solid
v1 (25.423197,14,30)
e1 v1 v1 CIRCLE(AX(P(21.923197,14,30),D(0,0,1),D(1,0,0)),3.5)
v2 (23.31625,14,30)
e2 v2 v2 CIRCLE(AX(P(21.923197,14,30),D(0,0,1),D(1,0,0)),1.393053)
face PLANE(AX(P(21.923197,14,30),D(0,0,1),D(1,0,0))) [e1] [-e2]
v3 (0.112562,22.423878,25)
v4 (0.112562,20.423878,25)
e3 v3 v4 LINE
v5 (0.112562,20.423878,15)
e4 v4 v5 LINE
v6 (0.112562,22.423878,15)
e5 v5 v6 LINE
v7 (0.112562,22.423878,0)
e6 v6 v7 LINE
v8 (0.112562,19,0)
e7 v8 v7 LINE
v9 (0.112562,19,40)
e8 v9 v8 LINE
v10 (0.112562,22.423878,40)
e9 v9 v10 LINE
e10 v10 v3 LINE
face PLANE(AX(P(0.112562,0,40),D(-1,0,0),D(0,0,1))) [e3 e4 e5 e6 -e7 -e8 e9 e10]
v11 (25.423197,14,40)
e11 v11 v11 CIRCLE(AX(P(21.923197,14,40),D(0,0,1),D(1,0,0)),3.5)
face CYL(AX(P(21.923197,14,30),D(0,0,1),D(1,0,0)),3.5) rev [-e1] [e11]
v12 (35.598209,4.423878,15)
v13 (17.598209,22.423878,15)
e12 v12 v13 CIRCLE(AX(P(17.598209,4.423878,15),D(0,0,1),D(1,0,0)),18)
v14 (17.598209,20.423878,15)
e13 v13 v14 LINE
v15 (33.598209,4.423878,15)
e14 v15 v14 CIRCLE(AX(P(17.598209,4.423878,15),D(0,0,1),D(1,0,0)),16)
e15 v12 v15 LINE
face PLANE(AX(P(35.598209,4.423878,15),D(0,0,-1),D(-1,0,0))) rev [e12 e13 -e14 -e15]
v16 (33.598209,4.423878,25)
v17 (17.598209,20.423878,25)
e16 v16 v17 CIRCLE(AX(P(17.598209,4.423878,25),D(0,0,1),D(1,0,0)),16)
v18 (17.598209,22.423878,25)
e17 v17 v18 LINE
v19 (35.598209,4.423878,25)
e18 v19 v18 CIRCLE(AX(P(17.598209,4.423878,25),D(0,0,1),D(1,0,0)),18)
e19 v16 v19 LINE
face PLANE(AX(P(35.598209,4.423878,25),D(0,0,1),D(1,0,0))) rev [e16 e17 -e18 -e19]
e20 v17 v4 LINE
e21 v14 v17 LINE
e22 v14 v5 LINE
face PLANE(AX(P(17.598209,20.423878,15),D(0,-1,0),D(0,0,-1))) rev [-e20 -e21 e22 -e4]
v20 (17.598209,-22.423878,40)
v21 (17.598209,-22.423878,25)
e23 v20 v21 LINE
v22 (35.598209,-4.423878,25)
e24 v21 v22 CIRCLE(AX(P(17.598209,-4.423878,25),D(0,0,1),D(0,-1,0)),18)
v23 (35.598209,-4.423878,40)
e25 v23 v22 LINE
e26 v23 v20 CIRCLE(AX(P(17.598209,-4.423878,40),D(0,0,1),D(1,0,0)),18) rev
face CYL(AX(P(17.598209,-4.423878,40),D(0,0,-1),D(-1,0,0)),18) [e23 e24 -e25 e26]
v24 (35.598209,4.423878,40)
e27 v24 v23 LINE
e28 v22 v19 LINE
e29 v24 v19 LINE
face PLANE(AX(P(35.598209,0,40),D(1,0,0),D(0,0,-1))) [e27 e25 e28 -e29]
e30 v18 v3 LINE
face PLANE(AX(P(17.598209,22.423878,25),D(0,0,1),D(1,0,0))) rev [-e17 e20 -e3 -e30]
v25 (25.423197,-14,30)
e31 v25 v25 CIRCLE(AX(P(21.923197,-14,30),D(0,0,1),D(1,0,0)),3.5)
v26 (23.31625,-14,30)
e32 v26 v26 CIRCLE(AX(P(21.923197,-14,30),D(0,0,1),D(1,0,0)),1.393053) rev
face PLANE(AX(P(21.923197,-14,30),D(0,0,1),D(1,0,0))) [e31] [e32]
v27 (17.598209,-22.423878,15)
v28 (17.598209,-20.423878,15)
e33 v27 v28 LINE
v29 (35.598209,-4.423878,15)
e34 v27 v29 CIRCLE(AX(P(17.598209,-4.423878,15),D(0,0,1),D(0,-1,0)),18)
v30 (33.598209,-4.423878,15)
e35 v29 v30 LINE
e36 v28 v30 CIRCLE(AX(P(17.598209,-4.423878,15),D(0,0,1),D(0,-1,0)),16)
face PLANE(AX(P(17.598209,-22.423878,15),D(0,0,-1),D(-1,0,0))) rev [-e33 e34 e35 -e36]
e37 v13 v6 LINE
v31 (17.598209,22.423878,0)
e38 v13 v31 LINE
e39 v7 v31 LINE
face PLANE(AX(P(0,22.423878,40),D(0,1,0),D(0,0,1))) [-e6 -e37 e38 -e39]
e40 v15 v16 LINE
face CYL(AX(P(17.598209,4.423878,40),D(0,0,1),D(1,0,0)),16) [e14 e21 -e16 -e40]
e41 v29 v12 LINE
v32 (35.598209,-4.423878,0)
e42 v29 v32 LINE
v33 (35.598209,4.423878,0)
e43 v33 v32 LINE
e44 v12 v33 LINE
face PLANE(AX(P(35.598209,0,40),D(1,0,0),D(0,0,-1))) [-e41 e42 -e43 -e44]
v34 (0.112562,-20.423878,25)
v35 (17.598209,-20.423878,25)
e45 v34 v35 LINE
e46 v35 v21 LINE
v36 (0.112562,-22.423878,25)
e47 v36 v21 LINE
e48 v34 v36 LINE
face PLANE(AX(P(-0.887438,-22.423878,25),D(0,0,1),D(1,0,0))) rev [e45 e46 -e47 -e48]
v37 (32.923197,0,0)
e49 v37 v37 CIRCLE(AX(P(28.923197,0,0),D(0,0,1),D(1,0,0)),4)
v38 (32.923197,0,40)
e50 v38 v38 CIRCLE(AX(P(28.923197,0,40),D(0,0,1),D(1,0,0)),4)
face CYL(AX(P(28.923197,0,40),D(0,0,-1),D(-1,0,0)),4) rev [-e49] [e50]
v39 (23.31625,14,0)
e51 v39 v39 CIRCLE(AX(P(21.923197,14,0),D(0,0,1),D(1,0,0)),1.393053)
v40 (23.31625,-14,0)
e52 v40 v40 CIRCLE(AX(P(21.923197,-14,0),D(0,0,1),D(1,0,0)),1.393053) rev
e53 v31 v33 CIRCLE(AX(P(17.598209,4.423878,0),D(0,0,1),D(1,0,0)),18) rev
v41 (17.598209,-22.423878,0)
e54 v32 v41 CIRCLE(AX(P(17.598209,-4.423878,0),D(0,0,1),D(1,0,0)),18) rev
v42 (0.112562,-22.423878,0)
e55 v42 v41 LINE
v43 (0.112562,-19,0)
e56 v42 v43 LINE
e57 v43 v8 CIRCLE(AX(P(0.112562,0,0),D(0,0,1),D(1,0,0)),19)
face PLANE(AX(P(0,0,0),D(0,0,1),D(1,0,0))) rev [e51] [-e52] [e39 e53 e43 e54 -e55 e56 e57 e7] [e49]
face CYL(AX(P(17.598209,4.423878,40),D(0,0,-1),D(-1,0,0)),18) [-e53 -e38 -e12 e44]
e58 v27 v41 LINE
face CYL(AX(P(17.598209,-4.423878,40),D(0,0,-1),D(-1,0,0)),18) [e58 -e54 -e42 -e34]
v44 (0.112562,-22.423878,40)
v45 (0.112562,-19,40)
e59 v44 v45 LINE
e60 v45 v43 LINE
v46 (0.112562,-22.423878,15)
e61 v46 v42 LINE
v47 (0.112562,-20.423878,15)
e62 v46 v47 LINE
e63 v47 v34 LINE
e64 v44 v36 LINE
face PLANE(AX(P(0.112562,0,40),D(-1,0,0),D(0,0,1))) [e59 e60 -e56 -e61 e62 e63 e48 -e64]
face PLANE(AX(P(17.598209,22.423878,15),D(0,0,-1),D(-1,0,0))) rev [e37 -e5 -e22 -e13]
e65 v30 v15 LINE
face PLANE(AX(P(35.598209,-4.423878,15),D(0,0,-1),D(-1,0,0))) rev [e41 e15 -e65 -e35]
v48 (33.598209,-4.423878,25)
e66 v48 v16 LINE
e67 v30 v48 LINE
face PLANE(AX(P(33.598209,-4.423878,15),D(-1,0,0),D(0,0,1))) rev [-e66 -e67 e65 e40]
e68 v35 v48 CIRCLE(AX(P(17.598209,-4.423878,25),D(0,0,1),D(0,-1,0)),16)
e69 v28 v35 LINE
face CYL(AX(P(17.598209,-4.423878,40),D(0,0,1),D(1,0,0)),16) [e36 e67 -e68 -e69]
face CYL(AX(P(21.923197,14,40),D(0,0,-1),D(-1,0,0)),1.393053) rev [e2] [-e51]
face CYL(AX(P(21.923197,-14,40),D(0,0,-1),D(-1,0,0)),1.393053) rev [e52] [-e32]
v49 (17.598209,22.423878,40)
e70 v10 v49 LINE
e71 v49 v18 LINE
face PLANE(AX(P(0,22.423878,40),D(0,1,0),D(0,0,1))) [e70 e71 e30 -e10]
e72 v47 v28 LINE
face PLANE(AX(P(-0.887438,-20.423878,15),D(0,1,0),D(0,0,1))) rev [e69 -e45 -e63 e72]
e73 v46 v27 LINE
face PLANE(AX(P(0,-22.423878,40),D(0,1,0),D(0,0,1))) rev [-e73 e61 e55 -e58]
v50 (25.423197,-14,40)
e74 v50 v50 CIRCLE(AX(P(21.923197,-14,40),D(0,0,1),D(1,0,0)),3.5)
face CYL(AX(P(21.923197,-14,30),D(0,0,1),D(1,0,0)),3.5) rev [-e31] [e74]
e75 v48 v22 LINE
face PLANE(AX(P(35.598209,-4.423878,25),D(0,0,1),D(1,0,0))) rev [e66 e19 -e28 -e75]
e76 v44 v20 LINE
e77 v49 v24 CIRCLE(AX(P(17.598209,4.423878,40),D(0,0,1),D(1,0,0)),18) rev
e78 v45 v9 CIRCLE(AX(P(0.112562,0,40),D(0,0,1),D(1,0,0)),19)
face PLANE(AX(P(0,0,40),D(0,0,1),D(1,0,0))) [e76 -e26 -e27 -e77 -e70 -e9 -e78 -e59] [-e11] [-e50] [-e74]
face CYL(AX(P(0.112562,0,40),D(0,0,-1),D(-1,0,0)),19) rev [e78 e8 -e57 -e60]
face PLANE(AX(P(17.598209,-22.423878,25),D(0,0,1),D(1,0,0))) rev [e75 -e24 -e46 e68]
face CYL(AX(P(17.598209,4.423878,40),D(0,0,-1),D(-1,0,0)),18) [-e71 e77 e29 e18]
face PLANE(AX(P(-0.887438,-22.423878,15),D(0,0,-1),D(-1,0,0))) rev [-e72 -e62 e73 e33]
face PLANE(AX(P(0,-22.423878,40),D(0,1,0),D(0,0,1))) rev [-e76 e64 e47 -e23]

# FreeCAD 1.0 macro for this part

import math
import FreeCAD as App
import Part
import Sketcher
Q = App.Units.Quantity


def add_polygon(sketch, points):
    """Adds a closed chain of lines whose ends are joined by coincident constraints."""
    first, n = sketch.GeometryCount, len(points)
    for a, b in zip(points, points[1:] + points[:1]):
        sketch.addGeometry(Part.LineSegment(App.Vector(*a, 0), App.Vector(*b, 0)), False)
    for i in range(n):
        sketch.addConstraint(Sketcher.Constraint("Coincident", first + i, 2, first + (i + 1) % n, 1))

doc = App.newDocument("Part")
body = doc.addObject("PartDesign::Body", "Body")

# Sketch on XY plane
sketch1 = doc.addObject("Sketcher::SketchObject", "Sketch")
body.addObject(sketch1)
sketch1.AttachmentSupport = (doc.XY_Plane, [""])
sketch1.MapMode = "FlatFace"
sketch1.addGeometry([
    Part.LineSegment(App.Vector(0.1, -19, 0), App.Vector(0.1, -22.4, 0)),  # 0
    Part.LineSegment(App.Vector(0.1, -22.4, 0), App.Vector(17.6, -22.4, 0)),  # 1
    Part.ArcOfCircle(Part.Circle(App.Vector(17.6, -4.4, 0), App.Vector(0, 0, 1), 18), math.radians(-90), math.radians(0)),  # 2
    Part.LineSegment(App.Vector(35.6, -4.4, 0), App.Vector(35.6, 4.4, 0)),  # 3
    Part.ArcOfCircle(Part.Circle(App.Vector(17.6, 4.4, 0), App.Vector(0, 0, 1), 18), math.radians(0), math.radians(90)),  # 4
    Part.LineSegment(App.Vector(17.6, 22.4, 0), App.Vector(0.1, 22.4, 0)),  # 5
    Part.LineSegment(App.Vector(0.1, 22.4, 0), App.Vector(0.1, 19, 0)),  # 6
    Part.ArcOfCircle(Part.Circle(App.Vector(0.1, 0, 0), App.Vector(0, 0, 1), 19), math.radians(-90), math.radians(90)),  # 7
    Part.Circle(App.Vector(21.9, -14, 0), App.Vector(0, 0, 1), 1.4),  # 8
    Part.Circle(App.Vector(28.9, 0, 0), App.Vector(0, 0, 1), 4),  # 9
    Part.Circle(App.Vector(21.9, 14, 0), App.Vector(0, 0, 1), 1.4),  # 10
], False)
sketch1.addConstraint([
    Sketcher.Constraint("Coincident", 0, 2, 1, 1),
    Sketcher.Constraint("Tangent", 1, 2, 2, 1),
    Sketcher.Constraint("Tangent", 2, 2, 3, 1),
    Sketcher.Constraint("Tangent", 3, 2, 4, 1),
    Sketcher.Constraint("Tangent", 4, 2, 5, 1),
    Sketcher.Constraint("Coincident", 5, 2, 6, 1),
    Sketcher.Constraint("Coincident", 6, 2, 7, 2),
    Sketcher.Constraint("Coincident", 7, 1, 0, 1),
    Sketcher.Constraint("Vertical", 0),
    Sketcher.Constraint("Horizontal", 1),
    Sketcher.Constraint("Vertical", 3),
    Sketcher.Constraint("Horizontal", 5),
    Sketcher.Constraint("Vertical", 6),
    Sketcher.Constraint("Equal", 2, 4),
    Sketcher.Constraint("Equal", 8, 10),
    Sketcher.Constraint("Symmetric", 8, 3, 10, 3, -1),
    Sketcher.Constraint("Symmetric", 0, 2, 5, 2, -1),
    Sketcher.Constraint("PointOnObject", 7, 3, -1),
    Sketcher.Constraint("PointOnObject", 9, 3, -1),
    Sketcher.Constraint("Vertical", 7, 3, 0, 2),
    Sketcher.Constraint("Diameter", 9, Q("8 mm")),
    Sketcher.Constraint("Radius", 2, Q("18 mm")),
    Sketcher.Constraint("Radius", 7, Q("19 mm")),
    Sketcher.Constraint("DistanceY", 8, 3, -1, 1, Q("14 mm")),
    Sketcher.Constraint("DistanceX", 8, 3, 9, 3, Q("7 mm")),
    Sketcher.Constraint("Diameter", 8, Q("2.786107 mm")),
    Sketcher.Constraint("DistanceX", 1, 1, 1, 2, Q("17.485646 mm")),
    Sketcher.Constraint("DistanceY", 0, 2, 0, 1, Q("3.423878 mm")),
    Sketcher.Constraint("DistanceX", -1, 1, 2, 3, Q("17.598209 mm")),
    Sketcher.Constraint("DistanceX", 2, 3, 8, 3, Q("4.324988 mm")),
])
pad1 = doc.addObject("PartDesign::Pad", "Pad")
body.addObject(pad1)
pad1.Profile = sketch1
pad1.Length = 40

# Sketch on YZ plane
sketch2 = doc.addObject("Sketcher::SketchObject", "Sketch001")
body.addObject(sketch2)
sketch2.AttachmentSupport = (doc.YZ_Plane, [""])
sketch2.MapMode = "FlatFace"
sketch2.AttachmentOffset = App.Placement(App.Vector(0, 0, 0.112562), App.Rotation())
add_polygon(sketch2, [(22.4, 15), (20.4, 15), (20.4, 25), (22.4, 25)])  # lines 0-3
sketch2.addConstraint([
    Sketcher.Constraint("Horizontal", 0),
    Sketcher.Constraint("Vertical", 1),
    Sketcher.Constraint("Horizontal", 2),
    Sketcher.Constraint("Vertical", 3),
    Sketcher.Constraint("DistanceX", 0, 2, 0, 1, Q("2 mm")),
    Sketcher.Constraint("DistanceY", 1, 1, 1, 2, Q("10 mm")),
    Sketcher.Constraint("DistanceY", -1, 1, 0, 2, Q("15 mm")),
    Sketcher.Constraint("DistanceX", -1, 1, 0, 2, Q("20.423878 mm")),
])

# Sketch on XY plane
sketch3 = doc.addObject("Sketcher::SketchObject", "Sketch002")
body.addObject(sketch3)
sketch3.AttachmentSupport = (doc.XY_Plane, [""])
sketch3.MapMode = "FlatFace"
sketch3.AttachmentOffset = App.Placement(App.Vector(0, 0, 40), App.Rotation())
sketch3.addGeometry([
    Part.LineSegment(App.Vector(0, -22, 0), App.Vector(18, -22, 0)),  # 0
    Part.ArcOfCircle(Part.Circle(App.Vector(18, -4, 0), App.Vector(0, 0, 1), 18), math.radians(-90), math.radians(0)),  # 1
    Part.LineSegment(App.Vector(36, -4, 0), App.Vector(36, 4, 0)),  # 2
    Part.ArcOfCircle(Part.Circle(App.Vector(18, 4, 0), App.Vector(0, 0, 1), 18), math.radians(0), math.radians(90)),  # 3
    Part.LineSegment(App.Vector(18, 22, 0), App.Vector(0, 22, 0)),  # 4
], False)
sketch3.addConstraint([
    Sketcher.Constraint("Tangent", 0, 2, 1, 1),
    Sketcher.Constraint("Tangent", 1, 2, 2, 1),
    Sketcher.Constraint("Tangent", 2, 2, 3, 1),
    Sketcher.Constraint("Tangent", 3, 2, 4, 1),
    Sketcher.Constraint("Horizontal", 0),
    Sketcher.Constraint("Vertical", 2),
    Sketcher.Constraint("Horizontal", 4),
    Sketcher.Constraint("Equal", 1, 3),
    Sketcher.Constraint("Symmetric", 0, 1, 4, 2, -1),
    Sketcher.Constraint("Radius", 1, Q("18 mm")),
    Sketcher.Constraint("DistanceX", 0, 1, 0, 2, Q("17.485646 mm")),
    Sketcher.Constraint("DistanceY", 2, 1, 2, 2, Q("8.847755 mm")),
    Sketcher.Constraint("DistanceX", -1, 1, 1, 3, Q("17.598209 mm")),
])
doc.recompute()

subtractivepipe = doc.addObject("PartDesign::SubtractivePipe", "SubtractivePipe")
body.addObject(subtractivepipe)
subtractivepipe.Profile = sketch2
subtractivepipe.Spine = (sketch3, ["Edge1", "Edge2", "Edge3", "Edge4", "Edge5"])

# Sketch on XY plane
sketch4 = doc.addObject("Sketcher::SketchObject", "Sketch003")
body.addObject(sketch4)
sketch4.AttachmentSupport = (doc.XY_Plane, [""])
sketch4.MapMode = "FlatFace"
sketch4.AttachmentOffset = App.Placement(App.Vector(0, 0, 40), App.Rotation())
sketch4.addGeometry([
    Part.Circle(App.Vector(21.9, 14, 0), App.Vector(0, 0, 1), 3.5),
    Part.Circle(App.Vector(21.9, -14, 0), App.Vector(0, 0, 1), 3.5),
], False)
sketch4.addConstraint([
    Sketcher.Constraint("Equal", 0, 1),
    Sketcher.Constraint("Symmetric", 0, 3, 1, 3, -1),
    Sketcher.Constraint("Diameter", 0, Q("7 mm")),
    Sketcher.Constraint("DistanceY", -1, 1, 0, 3, Q("14 mm")),
    Sketcher.Constraint("DistanceX", -1, 1, 0, 3, Q("21.923197 mm")),
])
pocket1 = doc.addObject("PartDesign::Pocket", "Pocket")
body.addObject(pocket1)
pocket1.Profile = sketch4
pocket1.Length = 10

doc.recompute()
